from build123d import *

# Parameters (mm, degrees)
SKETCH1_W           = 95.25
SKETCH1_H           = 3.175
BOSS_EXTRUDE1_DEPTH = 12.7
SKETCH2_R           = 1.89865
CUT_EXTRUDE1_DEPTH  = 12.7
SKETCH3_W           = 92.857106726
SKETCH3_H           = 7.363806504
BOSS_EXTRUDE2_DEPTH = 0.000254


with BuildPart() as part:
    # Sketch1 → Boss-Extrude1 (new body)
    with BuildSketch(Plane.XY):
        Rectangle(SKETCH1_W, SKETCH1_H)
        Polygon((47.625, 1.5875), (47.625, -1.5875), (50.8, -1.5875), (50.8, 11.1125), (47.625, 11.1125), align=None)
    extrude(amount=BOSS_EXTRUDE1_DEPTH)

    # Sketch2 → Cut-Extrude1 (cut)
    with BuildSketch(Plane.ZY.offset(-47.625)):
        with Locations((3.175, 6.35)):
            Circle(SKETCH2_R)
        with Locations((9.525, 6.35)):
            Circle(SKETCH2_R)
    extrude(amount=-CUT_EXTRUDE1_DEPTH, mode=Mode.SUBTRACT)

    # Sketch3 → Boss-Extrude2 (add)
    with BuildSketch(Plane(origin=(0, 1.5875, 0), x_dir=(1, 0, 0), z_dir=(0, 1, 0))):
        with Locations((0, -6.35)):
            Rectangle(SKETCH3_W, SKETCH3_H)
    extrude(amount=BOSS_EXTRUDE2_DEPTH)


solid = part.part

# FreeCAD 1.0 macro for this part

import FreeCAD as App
import Part
import Sketcher
from FreeCAD import Vector
Q = App.Units.Quantity


def add_polygon(sketch, points):
    """Adds a closed chain of lines whose ends are joined by coincident constraints."""
    first, n = sketch.GeometryCount, len(points)
    for a, b in zip(points, points[1:] + points[:1]):
        sketch.addGeometry(Part.LineSegment(App.Vector(*a, 0), App.Vector(*b, 0)), False)
    for i in range(n):
        sketch.addConstraint(Sketcher.Constraint("Coincident", first + i, 2, first + (i + 1) % n, 1))

doc = App.newDocument("Part")
body = doc.addObject("PartDesign::Body", "Body")

# Sketch on XY plane
sketch1 = body.newObject("Sketcher::SketchObject", "Sketch")
sketch1.AttachmentSupport = (doc.getObject("XY_Plane"), [""])
sketch1.MapMode = "FlatFace"
add_polygon(sketch1, [(-47.6, 1.6), (-47.6, -1.6), (50.8, -1.6), (50.8, 11.1), (47.6, 11.1), (47.6, 1.6)])  # lines 0-5
sketch1.addConstraint([
    Sketcher.Constraint("Vertical", 0),
    Sketcher.Constraint("Horizontal", 1),
    Sketcher.Constraint("Vertical", 2),
    Sketcher.Constraint("Horizontal", 3),
    Sketcher.Constraint("Vertical", 4),
    Sketcher.Constraint("Horizontal", 5),
    Sketcher.Constraint("Symmetric", 0, 2, 4, 2, -1, 1),
    Sketcher.Constraint("Equal", 3, 0),
    Sketcher.Constraint("DistanceY", 2, 1, 2, 2, Q("0.5 in")),
    Sketcher.Constraint("DistanceX", -1, 1, 1, 2, Q("2 in")),
    Sketcher.Constraint("DistanceX", 5, 2, 5, 1, Q("3.75 in")),
])
pad1 = body.newObject("PartDesign::Pad", "Pad")
pad1.Profile = sketch1
pad1.Length = Q("0.5 in")

# Sketch on YZ plane
sketch2 = body.newObject("Sketcher::SketchObject", "Sketch001")
sketch2.AttachmentSupport = (doc.getObject("YZ_Plane"), [""])
sketch2.MapMode = "FlatFace"
sketch2.AttachmentOffset = App.Placement(Vector(0, 0, 1.875 * 25.4), App.Rotation())
sketch2.addGeometry([
    Part.Circle(Vector(6.3, 3.2, 0), Vector(0, 0, 1), 1.9),
    Part.Circle(Vector(6.3, 9.5, 0), Vector(0, 0, 1), 1.9),
], False)
sketch2.addConstraint([
    Sketcher.Constraint("Equal", 0, 1),
    Sketcher.Constraint("Vertical", 0, 3, 1, 3),
    Sketcher.Constraint("Diameter", 0, Q("0.1495 in")),
    Sketcher.Constraint("DistanceX", -1, 1, 0, 3, Q("0.25 in")),
    Sketcher.Constraint("DistanceY", 0, 3, 1, 3, Q("0.25 in")),
    Sketcher.Constraint("DistanceY", -1, 1, 0, 3, Q("0.125 in")),
])
pocket1 = body.newObject("PartDesign::Pocket", "Pocket")
pocket1.Profile = sketch2
pocket1.Length = Q("0.5 in")
pocket1.Reversed = True

# Sketch on XZ plane
sketch3 = body.newObject("Sketcher::SketchObject", "Sketch002")
sketch3.AttachmentSupport = (doc.getObject("XZ_Plane"), [""])
sketch3.MapMode = "FlatFace"
sketch3.AttachmentOffset = App.Placement(Vector(0, 0, -0.0625 * 25.4), App.Rotation())
add_polygon(sketch3, [(-46, 3), (-46, 10), (46, 10), (46, 3)])  # lines 0-3
sketch3.addConstraint([
    Sketcher.Constraint("Vertical", 0),
    Sketcher.Constraint("Horizontal", 1),
    Sketcher.Constraint("Vertical", 2),
    Sketcher.Constraint("Horizontal", 3),
    Sketcher.Constraint("DistanceX", 1, 1, 1, 2, Q("92.857107 mm")),
    Sketcher.Constraint("DistanceY", 0, 1, 0, 2, Q("7.363807 mm")),
    Sketcher.Constraint("DistanceX", 0, 2, -1, 1, Q("46.428553 mm")),
    Sketcher.Constraint("DistanceY", -1, 1, 0, 2, Q("10.031903 mm")),
])
pad2 = body.newObject("PartDesign::Pad", "Pad001")
pad2.Profile = sketch3
pad2.Length = 0.000254
pad2.Reversed = True

doc.recompute()
